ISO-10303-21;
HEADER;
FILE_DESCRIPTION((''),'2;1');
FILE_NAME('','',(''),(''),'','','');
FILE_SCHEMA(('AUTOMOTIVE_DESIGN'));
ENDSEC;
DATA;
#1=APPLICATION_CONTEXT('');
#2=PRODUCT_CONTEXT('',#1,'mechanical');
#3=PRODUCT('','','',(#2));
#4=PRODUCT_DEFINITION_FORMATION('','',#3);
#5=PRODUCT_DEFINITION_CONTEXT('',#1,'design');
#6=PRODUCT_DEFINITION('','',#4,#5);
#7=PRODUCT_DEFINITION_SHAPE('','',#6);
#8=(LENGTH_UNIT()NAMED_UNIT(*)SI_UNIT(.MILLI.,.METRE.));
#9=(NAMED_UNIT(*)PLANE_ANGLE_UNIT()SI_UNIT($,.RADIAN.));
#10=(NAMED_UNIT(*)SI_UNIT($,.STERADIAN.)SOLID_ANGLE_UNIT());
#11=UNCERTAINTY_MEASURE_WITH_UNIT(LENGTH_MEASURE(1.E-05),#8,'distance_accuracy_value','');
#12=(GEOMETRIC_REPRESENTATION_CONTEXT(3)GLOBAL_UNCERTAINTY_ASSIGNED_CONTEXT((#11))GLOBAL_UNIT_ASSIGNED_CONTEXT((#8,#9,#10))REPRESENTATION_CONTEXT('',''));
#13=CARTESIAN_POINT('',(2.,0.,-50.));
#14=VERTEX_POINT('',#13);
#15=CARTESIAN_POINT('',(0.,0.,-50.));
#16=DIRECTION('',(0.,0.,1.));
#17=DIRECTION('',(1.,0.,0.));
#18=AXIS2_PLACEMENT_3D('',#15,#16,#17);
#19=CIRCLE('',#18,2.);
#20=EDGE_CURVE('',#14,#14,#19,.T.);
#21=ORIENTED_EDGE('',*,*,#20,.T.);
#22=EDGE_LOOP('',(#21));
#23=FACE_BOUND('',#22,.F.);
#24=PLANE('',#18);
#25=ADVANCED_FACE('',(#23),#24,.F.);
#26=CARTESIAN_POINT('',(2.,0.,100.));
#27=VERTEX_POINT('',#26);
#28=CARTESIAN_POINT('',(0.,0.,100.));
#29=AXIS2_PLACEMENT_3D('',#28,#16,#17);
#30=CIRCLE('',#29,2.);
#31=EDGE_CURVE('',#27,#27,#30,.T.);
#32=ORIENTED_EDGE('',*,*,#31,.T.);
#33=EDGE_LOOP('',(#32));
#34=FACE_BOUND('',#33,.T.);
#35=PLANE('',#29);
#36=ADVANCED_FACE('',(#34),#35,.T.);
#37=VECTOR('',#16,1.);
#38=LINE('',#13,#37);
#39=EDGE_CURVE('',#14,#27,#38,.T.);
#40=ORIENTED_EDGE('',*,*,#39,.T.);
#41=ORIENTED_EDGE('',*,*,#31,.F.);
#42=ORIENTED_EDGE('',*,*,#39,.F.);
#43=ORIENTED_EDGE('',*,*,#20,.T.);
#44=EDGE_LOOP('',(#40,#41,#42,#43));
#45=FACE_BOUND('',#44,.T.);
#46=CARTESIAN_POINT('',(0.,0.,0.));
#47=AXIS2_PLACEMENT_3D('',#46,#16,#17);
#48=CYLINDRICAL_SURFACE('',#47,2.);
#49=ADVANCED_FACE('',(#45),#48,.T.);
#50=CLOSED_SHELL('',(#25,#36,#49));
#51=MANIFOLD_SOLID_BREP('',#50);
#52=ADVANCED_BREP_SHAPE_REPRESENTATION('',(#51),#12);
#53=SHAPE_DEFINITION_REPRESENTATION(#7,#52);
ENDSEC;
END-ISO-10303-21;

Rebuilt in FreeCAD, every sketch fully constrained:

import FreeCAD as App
import Part
import Sketcher
Q = App.Units.Quantity

doc = App.newDocument("Part")
body = doc.addObject("PartDesign::Body", "Body")

sketch1 = body.newObject("Sketcher::SketchObject", "Sketch")
sketch1.AttachmentSupport = (doc.getObject("XY_Plane"), [""])
sketch1.MapMode = "FlatFace"
sketch1.addGeometry(Part.Circle(App.Vector(0, 0, 0), App.Vector(0, 0, 1), 2), False)
sketch1.addConstraint([
    Sketcher.Constraint("Coincident", 0, 3, -1, 1),
    Sketcher.Constraint("Diameter", 0, Q("4 mm")),
])
pad1 = body.newObject("PartDesign::Pad", "Pad")
pad1.Profile = sketch1
pad1.Type = "TwoLengths"
pad1.Length = 100
pad1.Length2 = 50

doc.recompute()
